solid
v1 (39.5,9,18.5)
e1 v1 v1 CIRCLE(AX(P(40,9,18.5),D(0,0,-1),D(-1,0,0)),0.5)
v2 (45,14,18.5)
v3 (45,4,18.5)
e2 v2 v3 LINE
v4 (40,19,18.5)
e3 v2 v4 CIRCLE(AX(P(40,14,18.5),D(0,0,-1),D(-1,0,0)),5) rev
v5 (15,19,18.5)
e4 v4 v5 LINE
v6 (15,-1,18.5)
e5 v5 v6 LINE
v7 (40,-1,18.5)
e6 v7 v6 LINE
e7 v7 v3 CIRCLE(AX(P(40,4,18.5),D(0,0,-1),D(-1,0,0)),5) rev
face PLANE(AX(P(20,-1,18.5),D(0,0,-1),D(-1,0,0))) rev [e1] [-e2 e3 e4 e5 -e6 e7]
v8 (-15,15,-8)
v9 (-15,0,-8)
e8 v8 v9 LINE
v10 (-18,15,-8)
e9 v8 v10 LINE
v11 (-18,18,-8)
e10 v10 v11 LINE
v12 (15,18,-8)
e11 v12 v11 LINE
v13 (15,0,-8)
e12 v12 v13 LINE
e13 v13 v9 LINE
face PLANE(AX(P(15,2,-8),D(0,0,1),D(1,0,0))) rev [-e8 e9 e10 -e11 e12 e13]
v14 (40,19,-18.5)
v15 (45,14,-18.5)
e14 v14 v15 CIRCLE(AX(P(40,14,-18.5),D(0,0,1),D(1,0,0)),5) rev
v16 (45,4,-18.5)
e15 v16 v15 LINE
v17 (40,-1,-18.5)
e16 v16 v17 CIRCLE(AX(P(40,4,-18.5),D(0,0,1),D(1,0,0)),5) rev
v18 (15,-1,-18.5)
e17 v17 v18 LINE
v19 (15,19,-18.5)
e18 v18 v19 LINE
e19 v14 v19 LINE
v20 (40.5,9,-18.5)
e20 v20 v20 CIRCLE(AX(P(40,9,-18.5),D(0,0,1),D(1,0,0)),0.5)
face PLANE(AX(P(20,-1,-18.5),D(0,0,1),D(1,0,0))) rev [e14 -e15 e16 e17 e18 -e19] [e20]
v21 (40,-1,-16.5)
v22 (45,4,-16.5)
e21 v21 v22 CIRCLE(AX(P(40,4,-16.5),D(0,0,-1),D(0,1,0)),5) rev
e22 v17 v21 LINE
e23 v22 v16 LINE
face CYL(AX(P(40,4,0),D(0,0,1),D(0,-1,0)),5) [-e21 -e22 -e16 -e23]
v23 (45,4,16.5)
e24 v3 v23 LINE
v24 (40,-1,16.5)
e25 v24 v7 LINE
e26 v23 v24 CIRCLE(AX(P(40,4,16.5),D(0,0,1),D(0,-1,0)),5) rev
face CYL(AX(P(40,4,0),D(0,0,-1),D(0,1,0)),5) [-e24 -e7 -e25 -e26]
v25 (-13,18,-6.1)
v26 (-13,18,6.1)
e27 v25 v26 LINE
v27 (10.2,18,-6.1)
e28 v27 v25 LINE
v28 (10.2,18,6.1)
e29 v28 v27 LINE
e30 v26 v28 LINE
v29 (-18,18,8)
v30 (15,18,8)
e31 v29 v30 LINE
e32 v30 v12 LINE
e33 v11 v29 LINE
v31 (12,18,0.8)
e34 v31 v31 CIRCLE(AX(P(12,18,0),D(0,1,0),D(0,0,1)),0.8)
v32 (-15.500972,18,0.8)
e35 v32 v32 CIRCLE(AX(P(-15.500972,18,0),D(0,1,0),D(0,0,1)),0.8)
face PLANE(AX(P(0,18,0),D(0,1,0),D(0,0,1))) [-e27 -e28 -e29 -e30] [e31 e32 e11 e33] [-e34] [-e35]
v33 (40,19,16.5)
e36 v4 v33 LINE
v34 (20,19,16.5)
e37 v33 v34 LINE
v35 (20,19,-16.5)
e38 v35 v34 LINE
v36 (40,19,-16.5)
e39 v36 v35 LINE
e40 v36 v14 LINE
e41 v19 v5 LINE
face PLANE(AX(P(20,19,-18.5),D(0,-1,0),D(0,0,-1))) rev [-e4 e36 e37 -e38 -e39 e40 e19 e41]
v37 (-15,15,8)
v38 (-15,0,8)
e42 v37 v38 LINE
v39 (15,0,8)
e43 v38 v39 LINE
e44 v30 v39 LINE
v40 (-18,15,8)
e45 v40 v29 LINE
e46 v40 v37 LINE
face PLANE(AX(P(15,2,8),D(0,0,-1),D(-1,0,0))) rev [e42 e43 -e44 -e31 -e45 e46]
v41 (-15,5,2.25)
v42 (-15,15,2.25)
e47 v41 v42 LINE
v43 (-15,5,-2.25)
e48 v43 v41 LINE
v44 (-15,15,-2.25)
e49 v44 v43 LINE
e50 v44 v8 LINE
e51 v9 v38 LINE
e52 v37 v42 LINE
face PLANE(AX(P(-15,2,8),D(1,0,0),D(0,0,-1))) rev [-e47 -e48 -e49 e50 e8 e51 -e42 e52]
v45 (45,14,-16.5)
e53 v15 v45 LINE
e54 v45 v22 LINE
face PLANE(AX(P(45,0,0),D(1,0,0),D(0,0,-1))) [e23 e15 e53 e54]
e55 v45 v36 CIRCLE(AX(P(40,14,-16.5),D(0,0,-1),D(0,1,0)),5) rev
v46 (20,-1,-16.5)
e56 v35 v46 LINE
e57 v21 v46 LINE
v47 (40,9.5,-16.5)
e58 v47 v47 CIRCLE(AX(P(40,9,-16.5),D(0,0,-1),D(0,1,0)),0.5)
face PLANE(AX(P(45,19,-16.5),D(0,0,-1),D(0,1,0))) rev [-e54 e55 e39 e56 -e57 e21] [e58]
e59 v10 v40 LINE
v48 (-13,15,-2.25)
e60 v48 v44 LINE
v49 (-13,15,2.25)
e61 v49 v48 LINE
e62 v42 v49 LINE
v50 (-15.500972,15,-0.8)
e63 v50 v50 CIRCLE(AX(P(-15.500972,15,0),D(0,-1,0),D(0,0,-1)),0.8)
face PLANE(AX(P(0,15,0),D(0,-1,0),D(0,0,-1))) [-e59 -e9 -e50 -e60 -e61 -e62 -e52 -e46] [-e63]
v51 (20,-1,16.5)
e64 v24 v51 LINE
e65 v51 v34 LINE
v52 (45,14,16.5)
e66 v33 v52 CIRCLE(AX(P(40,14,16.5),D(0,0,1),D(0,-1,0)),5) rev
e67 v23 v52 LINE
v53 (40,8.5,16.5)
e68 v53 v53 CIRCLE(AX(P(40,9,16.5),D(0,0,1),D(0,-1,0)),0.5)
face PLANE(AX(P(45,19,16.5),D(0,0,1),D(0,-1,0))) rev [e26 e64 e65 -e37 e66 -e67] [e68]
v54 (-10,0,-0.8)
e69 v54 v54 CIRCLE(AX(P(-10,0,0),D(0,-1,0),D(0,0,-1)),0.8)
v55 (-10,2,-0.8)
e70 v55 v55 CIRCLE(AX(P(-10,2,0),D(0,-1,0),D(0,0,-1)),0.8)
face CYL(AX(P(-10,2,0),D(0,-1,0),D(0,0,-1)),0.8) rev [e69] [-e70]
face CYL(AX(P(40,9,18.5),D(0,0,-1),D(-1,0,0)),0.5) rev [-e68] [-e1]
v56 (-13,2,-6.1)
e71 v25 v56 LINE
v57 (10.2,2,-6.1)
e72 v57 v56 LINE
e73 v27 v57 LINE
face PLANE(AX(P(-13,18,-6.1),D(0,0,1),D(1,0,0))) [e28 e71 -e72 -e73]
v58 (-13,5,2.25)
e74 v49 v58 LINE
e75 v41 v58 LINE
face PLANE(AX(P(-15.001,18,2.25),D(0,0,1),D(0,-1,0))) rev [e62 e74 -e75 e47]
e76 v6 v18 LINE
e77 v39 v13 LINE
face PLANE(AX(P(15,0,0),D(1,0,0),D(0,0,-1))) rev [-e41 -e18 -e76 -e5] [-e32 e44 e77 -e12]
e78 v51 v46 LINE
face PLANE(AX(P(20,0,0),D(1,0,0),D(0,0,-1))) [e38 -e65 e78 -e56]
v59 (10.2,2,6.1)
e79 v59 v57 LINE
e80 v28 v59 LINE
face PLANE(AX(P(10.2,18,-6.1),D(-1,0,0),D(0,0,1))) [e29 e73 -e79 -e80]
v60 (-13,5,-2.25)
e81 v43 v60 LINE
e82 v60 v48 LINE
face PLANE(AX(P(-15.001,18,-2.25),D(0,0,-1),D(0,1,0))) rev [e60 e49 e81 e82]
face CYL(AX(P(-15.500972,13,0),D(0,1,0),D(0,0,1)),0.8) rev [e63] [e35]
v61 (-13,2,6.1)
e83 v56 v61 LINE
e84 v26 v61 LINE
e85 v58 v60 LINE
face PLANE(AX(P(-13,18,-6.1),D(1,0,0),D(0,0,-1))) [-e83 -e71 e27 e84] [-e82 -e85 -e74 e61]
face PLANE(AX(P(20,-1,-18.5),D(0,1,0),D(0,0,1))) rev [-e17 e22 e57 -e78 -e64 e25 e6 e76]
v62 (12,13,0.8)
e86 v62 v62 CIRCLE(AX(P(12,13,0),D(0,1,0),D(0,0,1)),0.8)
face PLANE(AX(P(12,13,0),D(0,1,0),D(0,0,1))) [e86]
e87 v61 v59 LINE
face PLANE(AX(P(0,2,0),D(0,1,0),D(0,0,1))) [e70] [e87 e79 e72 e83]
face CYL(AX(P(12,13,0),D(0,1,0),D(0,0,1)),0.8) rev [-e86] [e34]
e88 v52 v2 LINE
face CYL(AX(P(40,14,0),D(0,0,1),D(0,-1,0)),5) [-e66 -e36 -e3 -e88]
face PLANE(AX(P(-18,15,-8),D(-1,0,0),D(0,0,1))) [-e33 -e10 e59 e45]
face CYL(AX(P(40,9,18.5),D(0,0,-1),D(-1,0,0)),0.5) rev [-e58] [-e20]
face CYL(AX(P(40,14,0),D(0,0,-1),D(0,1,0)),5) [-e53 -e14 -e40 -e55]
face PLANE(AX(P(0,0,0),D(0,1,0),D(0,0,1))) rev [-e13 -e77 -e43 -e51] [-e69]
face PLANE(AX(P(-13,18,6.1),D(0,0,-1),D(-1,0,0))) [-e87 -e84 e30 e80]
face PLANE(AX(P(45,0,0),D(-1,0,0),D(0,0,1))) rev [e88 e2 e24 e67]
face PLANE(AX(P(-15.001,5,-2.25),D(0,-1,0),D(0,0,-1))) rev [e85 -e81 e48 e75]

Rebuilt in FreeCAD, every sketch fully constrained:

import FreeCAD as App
import Part
import Sketcher

V = App.Vector
Q = App.Units.Quantity


def edges_at(feature, points):
    """Names of the edges that pass closest to the given points."""
    edges = feature.Shape.Edges
    near = lambda p: min(range(len(edges)), key=lambda i: edges[i].distToShape(Part.Vertex(*p))[0])
    return sorted({f"Edge{near(p) + 1}" for p in points})

doc = App.newDocument("Part")
body = doc.addObject("PartDesign::Body", "Body")

# Sketch on XZ plane
sketch1 = body.newObject("Sketcher::SketchObject", "Sketch")
sketch1.AttachmentSupport = (doc.getObject("XZ_Plane"), [""])
sketch1.MapMode = "FlatFace"
sketch1.addGeometry([
    Part.LineSegment(V(-15, -8, 0), V(-15, 8, 0)),
    Part.LineSegment(V(-15, 8, 0), V(15, 8, 0)),
    Part.LineSegment(V(15, 8, 0), V(15, -8, 0)),
    Part.LineSegment(V(15, -8, 0), V(-15, -8, 0)),
], False)
sketch1.addConstraint([
    Sketcher.Constraint("Coincident", 0, 2, 1, 1),
    Sketcher.Constraint("Coincident", 1, 2, 2, 1),
    Sketcher.Constraint("Coincident", 2, 2, 3, 1),
    Sketcher.Constraint("Coincident", 3, 2, 0, 1),
    Sketcher.Constraint("Vertical", 0),
    Sketcher.Constraint("Horizontal", 1),
    Sketcher.Constraint("Vertical", 2),
    Sketcher.Constraint("Horizontal", 3),
    Sketcher.Constraint("Symmetric", 0, 2, 2, 2, -1, 1),
    Sketcher.Constraint("DistanceX", 1, 1, 1, 2, Q("30 mm")),
    Sketcher.Constraint("DistanceY", 0, 1, 0, 2, Q("16 mm")),
])
pad1 = body.newObject("PartDesign::Pad", "Pad")
pad1.Profile = sketch1
pad1.Length = 2
pad1.Reversed = True

# Sketch on XZ plane
sketch2 = body.newObject("Sketcher::SketchObject", "Sketch001")
sketch2.AttachmentSupport = (doc.getObject("XZ_Plane"), [""])
sketch2.MapMode = "FlatFace"
sketch2.AttachmentOffset = App.Placement(V(0, 0, -2), App.Rotation())
sketch2.addGeometry([
    Part.LineSegment(V(15, -8, 0), V(-15, -8, 0)),  # 0
    Part.LineSegment(V(-15, -8, 0), V(-15, 8, 0)),  # 1
    Part.LineSegment(V(-15, 8, 0), V(15, 8, 0)),  # 2
    Part.LineSegment(V(15, 8, 0), V(15, -8, 0)),  # 3
    Part.LineSegment(V(-13, 6, 0), V(-13, -6, 0)),  # 4
    Part.LineSegment(V(-13, -6, 0), V(10, -6, 0)),  # 5
    Part.LineSegment(V(10, -6, 0), V(10, 6, 0)),  # 6
    Part.LineSegment(V(10, 6, 0), V(-13, 6, 0)),  # 7
], False)
sketch2.addConstraint([
    Sketcher.Constraint("Coincident", 0, 2, 1, 1),
    Sketcher.Constraint("Coincident", 1, 2, 2, 1),
    Sketcher.Constraint("Coincident", 2, 2, 3, 1),
    Sketcher.Constraint("Coincident", 3, 2, 0, 1),
    Sketcher.Constraint("Coincident", 4, 2, 5, 1),
    Sketcher.Constraint("Coincident", 5, 2, 6, 1),
    Sketcher.Constraint("Coincident", 6, 2, 7, 1),
    Sketcher.Constraint("Coincident", 7, 2, 4, 1),
    Sketcher.Constraint("Horizontal", 0),
    Sketcher.Constraint("Vertical", 1),
    Sketcher.Constraint("Horizontal", 2),
    Sketcher.Constraint("Vertical", 3),
    Sketcher.Constraint("Vertical", 4),
    Sketcher.Constraint("Horizontal", 5),
    Sketcher.Constraint("Vertical", 6),
    Sketcher.Constraint("Horizontal", 7),
    Sketcher.Constraint("Symmetric", 0, 2, 2, 2, -1, 1),
    Sketcher.Constraint("DistanceX", 0, 2, 0, 1, Q("30 mm")),
    Sketcher.Constraint("DistanceY", 1, 1, 1, 2, Q("16 mm")),
    Sketcher.Constraint("DistanceX", 5, 1, 5, 2, Q("23.2 mm")),
    Sketcher.Constraint("DistanceY", 4, 2, 4, 1, Q("12.2 mm")),
    Sketcher.Constraint("DistanceX", 4, 2, -1, 1, Q("13 mm")),
    Sketcher.Constraint("DistanceY", 4, 2, -1, 1, Q("6.1 mm")),
])
pad2 = body.newObject("PartDesign::Pad", "Pad001")
pad2.Profile = sketch2
pad2.Length = 16
pad2.Reversed = True

# Sketch on YZ plane
sketch3 = body.newObject("Sketcher::SketchObject", "Sketch002")
sketch3.AttachmentSupport = (doc.getObject("YZ_Plane"), [""])
sketch3.MapMode = "FlatFace"
sketch3.AttachmentOffset = App.Placement(V(0, 0, -13), App.Rotation())
sketch3.addGeometry([
    Part.LineSegment(V(18, 2.2, 0), V(5, 2.2, 0)),
    Part.LineSegment(V(5, 2.2, 0), V(5, -2.2, 0)),
    Part.LineSegment(V(5, -2.2, 0), V(18, -2.2, 0)),
    Part.LineSegment(V(18, -2.2, 0), V(18, 2.2, 0)),
], False)
sketch3.addConstraint([
    Sketcher.Constraint("Coincident", 0, 2, 1, 1),
    Sketcher.Constraint("Coincident", 1, 2, 2, 1),
    Sketcher.Constraint("Coincident", 2, 2, 3, 1),
    Sketcher.Constraint("Coincident", 3, 2, 0, 1),
    Sketcher.Constraint("Horizontal", 0),
    Sketcher.Constraint("Vertical", 1),
    Sketcher.Constraint("Horizontal", 2),
    Sketcher.Constraint("Vertical", 3),
    Sketcher.Constraint("DistanceX", 0, 2, 0, 1, Q("13 mm")),
    Sketcher.Constraint("DistanceY", 1, 2, 1, 1, Q("4.5 mm")),
    Sketcher.Constraint("DistanceX", -1, 1, 0, 2, Q("5 mm")),
    Sketcher.Constraint("DistanceY", -1, 1, 0, 2, Q("2.25 mm")),
])
pocket1 = body.newObject("PartDesign::Pocket", "Pocket")
pocket1.Profile = sketch3
pocket1.Type = "UpToFirst"

# Sketch on XZ plane
sketch4 = body.newObject("Sketcher::SketchObject", "Sketch003")
sketch4.AttachmentSupport = (doc.getObject("XZ_Plane"), [""])
sketch4.MapMode = "FlatFace"
sketch4.addGeometry(Part.Circle(V(-10, 0, 0), V(0, 0, 1), 0.8), False)
sketch4.addConstraint([
    Sketcher.Constraint("PointOnObject", 0, 3, -1),
    Sketcher.Constraint("Diameter", 0, Q("1.6 mm")),
    Sketcher.Constraint("DistanceX", 0, 3, -1, 1, Q("10 mm")),
])
pocket2 = body.newObject("PartDesign::Pocket", "Pocket001")
pocket2.Profile = sketch4
pocket2.Length = 2

# Sketch on XZ plane
sketch5 = body.newObject("Sketcher::SketchObject", "Sketch004")
sketch5.AttachmentSupport = (doc.getObject("XZ_Plane"), [""])
sketch5.MapMode = "FlatFace"
sketch5.AttachmentOffset = App.Placement(V(0, 0, -18), App.Rotation())
sketch5.addGeometry([
    Part.LineSegment(V(-18, -8, 0), V(-18, 8, 0)),  # 0
    Part.LineSegment(V(-18, 8, 0), V(-13, 8, 0)),  # 1
    Part.LineSegment(V(-13, 8, 0), V(-13, -8, 0)),  # 2
    Part.LineSegment(V(-13, -8, 0), V(-18, -8, 0)),  # 3
    Part.LineSegment(V(10.2, -8, 0), V(10.2, 8, 0)),  # 4
    Part.LineSegment(V(10.2, 8, 0), V(14.2, 8, 0)),  # 5
    Part.LineSegment(V(14.2, 8, 0), V(14.2, -8, 0)),  # 6
    Part.LineSegment(V(14.2, -8, 0), V(10.2, -8, 0)),  # 7
], False)
sketch5.addConstraint([
    Sketcher.Constraint("Coincident", 0, 2, 1, 1),
    Sketcher.Constraint("Coincident", 1, 2, 2, 1),
    Sketcher.Constraint("Coincident", 2, 2, 3, 1),
    Sketcher.Constraint("Coincident", 3, 2, 0, 1),
    Sketcher.Constraint("Coincident", 4, 2, 5, 1),
    Sketcher.Constraint("Coincident", 5, 2, 6, 1),
    Sketcher.Constraint("Coincident", 6, 2, 7, 1),
    Sketcher.Constraint("Coincident", 7, 2, 4, 1),
    Sketcher.Constraint("Vertical", 0),
    Sketcher.Constraint("Horizontal", 1),
    Sketcher.Constraint("Vertical", 2),
    Sketcher.Constraint("Horizontal", 3),
    Sketcher.Constraint("Vertical", 4),
    Sketcher.Constraint("Horizontal", 5),
    Sketcher.Constraint("Vertical", 6),
    Sketcher.Constraint("Horizontal", 7),
    Sketcher.Constraint("Horizontal", 1, 2, 4, 2),
    Sketcher.Constraint("Horizontal", 3, 2, 6, 2),
    Sketcher.Constraint("DistanceX", 1, 1, 1, 2, Q("5 mm")),
    Sketcher.Constraint("DistanceX", 5, 1, 5, 2, Q("4 mm")),
    Sketcher.Constraint("DistanceY", 0, 1, 0, 2, Q("16 mm")),
    Sketcher.Constraint("DistanceX", 0, 2, -1, 1, Q("18 mm")),
    Sketcher.Constraint("DistanceY", -1, 1, 0, 2, Q("8 mm")),
    Sketcher.Constraint("DistanceX", -1, 1, 4, 2, Q("10.2 mm")),
])
pad3 = body.newObject("PartDesign::Pad", "Pad002")
pad3.Profile = sketch5
pad3.Length = 3

# Sketch on XZ plane
sketch6 = body.newObject("Sketcher::SketchObject", "Sketch005")
sketch6.AttachmentSupport = (doc.getObject("XZ_Plane"), [""])
sketch6.MapMode = "FlatFace"
sketch6.AttachmentOffset = App.Placement(V(0, 0, -18), App.Rotation())
sketch6.addGeometry([
    Part.Circle(V(12, 0, 0), V(0, 0, 1), 0.8),
    Part.Circle(V(-15.5, 0, 0), V(0, 0, 1), 0.8),
], False)
sketch6.addConstraint([
    Sketcher.Constraint("Equal", 0, 1),
    Sketcher.Constraint("PointOnObject", 0, 3, -1),
    Sketcher.Constraint("PointOnObject", 1, 3, -1),
    Sketcher.Constraint("Diameter", 0, Q("1.6 mm")),
    Sketcher.Constraint("DistanceX", -1, 1, 0, 3, Q("12 mm")),
    Sketcher.Constraint("DistanceX", 1, 3, -1, 1, Q("15.500972 mm")),
])
pocket3 = body.newObject("PartDesign::Pocket", "Pocket002")
pocket3.Profile = sketch6
pocket3.Length = 5
pocket3.Reversed = True

# Sketch on YZ plane
sketch7 = body.newObject("Sketcher::SketchObject", "Sketch006")
sketch7.AttachmentSupport = (doc.getObject("YZ_Plane"), [""])
sketch7.MapMode = "FlatFace"
sketch7.AttachmentOffset = App.Placement(V(0, 0, 15), App.Rotation())
sketch7.addGeometry([
    Part.LineSegment(V(19, 18, 0), V(-1, 18, 0)),
    Part.LineSegment(V(-1, 18, 0), V(-1, -18, 0)),
    Part.LineSegment(V(-1, -18, 0), V(19, -18, 0)),
    Part.LineSegment(V(19, -18, 0), V(19, 18, 0)),
], False)
sketch7.addConstraint([
    Sketcher.Constraint("Coincident", 0, 2, 1, 1),
    Sketcher.Constraint("Coincident", 1, 2, 2, 1),
    Sketcher.Constraint("Coincident", 2, 2, 3, 1),
    Sketcher.Constraint("Coincident", 3, 2, 0, 1),
    Sketcher.Constraint("Horizontal", 0),
    Sketcher.Constraint("Vertical", 1),
    Sketcher.Constraint("Horizontal", 2),
    Sketcher.Constraint("Vertical", 3),
    Sketcher.Constraint("DistanceX", 0, 2, 0, 1, Q("20 mm")),
    Sketcher.Constraint("DistanceY", 1, 2, 1, 1, Q("37 mm")),
    Sketcher.Constraint("DistanceX", 0, 2, -1, 1, Q("1 mm")),
    Sketcher.Constraint("DistanceY", -1, 1, 0, 2, Q("18.5 mm")),
])
pad4 = body.newObject("PartDesign::Pad", "Pad003")
pad4.Profile = sketch7
pad4.Length = 5

# Sketch on YZ plane
sketch8 = body.newObject("Sketcher::SketchObject", "Sketch007")
sketch8.AttachmentSupport = (doc.getObject("YZ_Plane"), [""])
sketch8.MapMode = "FlatFace"
sketch8.AttachmentOffset = App.Placement(V(0, 0, 20), App.Rotation())
sketch8.addGeometry([
    Part.LineSegment(V(19, 18.5, 0), V(-1, 18.5, 0)),  # 0
    Part.LineSegment(V(-1, 18.5, 0), V(-1, 16.5, 0)),  # 1
    Part.LineSegment(V(-1, 16.5, 0), V(19, 16.5, 0)),  # 2
    Part.LineSegment(V(19, 16.5, 0), V(19, 18.5, 0)),  # 3
    Part.LineSegment(V(19, -16.5, 0), V(-1, -16.5, 0)),  # 4
    Part.LineSegment(V(-1, -16.5, 0), V(-1, -18.5, 0)),  # 5
    Part.LineSegment(V(-1, -18.5, 0), V(19, -18.5, 0)),  # 6
    Part.LineSegment(V(19, -18.5, 0), V(19, -16.5, 0)),  # 7
], False)
sketch8.addConstraint([
    Sketcher.Constraint("Coincident", 0, 2, 1, 1),
    Sketcher.Constraint("Coincident", 1, 2, 2, 1),
    Sketcher.Constraint("Coincident", 2, 2, 3, 1),
    Sketcher.Constraint("Coincident", 3, 2, 0, 1),
    Sketcher.Constraint("Coincident", 4, 2, 5, 1),
    Sketcher.Constraint("Coincident", 5, 2, 6, 1),
    Sketcher.Constraint("Coincident", 6, 2, 7, 1),
    Sketcher.Constraint("Coincident", 7, 2, 4, 1),
    Sketcher.Constraint("Horizontal", 0),
    Sketcher.Constraint("Vertical", 1),
    Sketcher.Constraint("Horizontal", 2),
    Sketcher.Constraint("Vertical", 3),
    Sketcher.Constraint("Horizontal", 4),
    Sketcher.Constraint("Vertical", 5),
    Sketcher.Constraint("Horizontal", 6),
    Sketcher.Constraint("Vertical", 7),
    Sketcher.Constraint("Symmetric", 1, 2, 4, 2, -1),
    Sketcher.Constraint("Symmetric", 3, 2, 6, 2, -1),
    Sketcher.Constraint("DistanceX", 0, 2, 0, 1, Q("20 mm")),
    Sketcher.Constraint("DistanceY", 1, 2, 1, 1, Q("2 mm")),
    Sketcher.Constraint("DistanceX", 0, 2, -1, 1, Q("1 mm")),
    Sketcher.Constraint("DistanceY", 4, 2, 1, 2, Q("33 mm")),
])
pad5 = body.newObject("PartDesign::Pad", "Pad004")
pad5.Profile = sketch8
pad5.Length = 25
doc.recompute()

fillet = body.newObject("PartDesign::Fillet", "Fillet")
fillet.Base = (pad5, edges_at(pad5, [
    (45, 19, -17.5),
    (45, -1, -17.5),
    (45, 19, 17.5),
    (45, -1, 17.5),
]))
fillet.Radius = 5

# Sketch on XY plane
sketch9 = body.newObject("Sketcher::SketchObject", "Sketch008")
sketch9.AttachmentSupport = (doc.getObject("XY_Plane"), [""])
sketch9.MapMode = "FlatFace"
sketch9.AttachmentOffset = App.Placement(V(0, 0, -18.5), App.Rotation())
sketch9.addGeometry(Part.Circle(V(40, 9, 0), V(0, 0, 1), 0.5), False)
sketch9.addConstraint([
    Sketcher.Constraint("Diameter", 0, Q("1 mm")),
    Sketcher.Constraint("DistanceX", -1, 1, 0, 3, Q("40 mm")),
    Sketcher.Constraint("DistanceY", -1, 1, 0, 3, Q("9 mm")),
])
pocket4 = body.newObject("PartDesign::Pocket", "Pocket003")
pocket4.Profile = sketch9
pocket4.Type = "ThroughAll"
pocket4.Midplane = True

doc.recompute()
